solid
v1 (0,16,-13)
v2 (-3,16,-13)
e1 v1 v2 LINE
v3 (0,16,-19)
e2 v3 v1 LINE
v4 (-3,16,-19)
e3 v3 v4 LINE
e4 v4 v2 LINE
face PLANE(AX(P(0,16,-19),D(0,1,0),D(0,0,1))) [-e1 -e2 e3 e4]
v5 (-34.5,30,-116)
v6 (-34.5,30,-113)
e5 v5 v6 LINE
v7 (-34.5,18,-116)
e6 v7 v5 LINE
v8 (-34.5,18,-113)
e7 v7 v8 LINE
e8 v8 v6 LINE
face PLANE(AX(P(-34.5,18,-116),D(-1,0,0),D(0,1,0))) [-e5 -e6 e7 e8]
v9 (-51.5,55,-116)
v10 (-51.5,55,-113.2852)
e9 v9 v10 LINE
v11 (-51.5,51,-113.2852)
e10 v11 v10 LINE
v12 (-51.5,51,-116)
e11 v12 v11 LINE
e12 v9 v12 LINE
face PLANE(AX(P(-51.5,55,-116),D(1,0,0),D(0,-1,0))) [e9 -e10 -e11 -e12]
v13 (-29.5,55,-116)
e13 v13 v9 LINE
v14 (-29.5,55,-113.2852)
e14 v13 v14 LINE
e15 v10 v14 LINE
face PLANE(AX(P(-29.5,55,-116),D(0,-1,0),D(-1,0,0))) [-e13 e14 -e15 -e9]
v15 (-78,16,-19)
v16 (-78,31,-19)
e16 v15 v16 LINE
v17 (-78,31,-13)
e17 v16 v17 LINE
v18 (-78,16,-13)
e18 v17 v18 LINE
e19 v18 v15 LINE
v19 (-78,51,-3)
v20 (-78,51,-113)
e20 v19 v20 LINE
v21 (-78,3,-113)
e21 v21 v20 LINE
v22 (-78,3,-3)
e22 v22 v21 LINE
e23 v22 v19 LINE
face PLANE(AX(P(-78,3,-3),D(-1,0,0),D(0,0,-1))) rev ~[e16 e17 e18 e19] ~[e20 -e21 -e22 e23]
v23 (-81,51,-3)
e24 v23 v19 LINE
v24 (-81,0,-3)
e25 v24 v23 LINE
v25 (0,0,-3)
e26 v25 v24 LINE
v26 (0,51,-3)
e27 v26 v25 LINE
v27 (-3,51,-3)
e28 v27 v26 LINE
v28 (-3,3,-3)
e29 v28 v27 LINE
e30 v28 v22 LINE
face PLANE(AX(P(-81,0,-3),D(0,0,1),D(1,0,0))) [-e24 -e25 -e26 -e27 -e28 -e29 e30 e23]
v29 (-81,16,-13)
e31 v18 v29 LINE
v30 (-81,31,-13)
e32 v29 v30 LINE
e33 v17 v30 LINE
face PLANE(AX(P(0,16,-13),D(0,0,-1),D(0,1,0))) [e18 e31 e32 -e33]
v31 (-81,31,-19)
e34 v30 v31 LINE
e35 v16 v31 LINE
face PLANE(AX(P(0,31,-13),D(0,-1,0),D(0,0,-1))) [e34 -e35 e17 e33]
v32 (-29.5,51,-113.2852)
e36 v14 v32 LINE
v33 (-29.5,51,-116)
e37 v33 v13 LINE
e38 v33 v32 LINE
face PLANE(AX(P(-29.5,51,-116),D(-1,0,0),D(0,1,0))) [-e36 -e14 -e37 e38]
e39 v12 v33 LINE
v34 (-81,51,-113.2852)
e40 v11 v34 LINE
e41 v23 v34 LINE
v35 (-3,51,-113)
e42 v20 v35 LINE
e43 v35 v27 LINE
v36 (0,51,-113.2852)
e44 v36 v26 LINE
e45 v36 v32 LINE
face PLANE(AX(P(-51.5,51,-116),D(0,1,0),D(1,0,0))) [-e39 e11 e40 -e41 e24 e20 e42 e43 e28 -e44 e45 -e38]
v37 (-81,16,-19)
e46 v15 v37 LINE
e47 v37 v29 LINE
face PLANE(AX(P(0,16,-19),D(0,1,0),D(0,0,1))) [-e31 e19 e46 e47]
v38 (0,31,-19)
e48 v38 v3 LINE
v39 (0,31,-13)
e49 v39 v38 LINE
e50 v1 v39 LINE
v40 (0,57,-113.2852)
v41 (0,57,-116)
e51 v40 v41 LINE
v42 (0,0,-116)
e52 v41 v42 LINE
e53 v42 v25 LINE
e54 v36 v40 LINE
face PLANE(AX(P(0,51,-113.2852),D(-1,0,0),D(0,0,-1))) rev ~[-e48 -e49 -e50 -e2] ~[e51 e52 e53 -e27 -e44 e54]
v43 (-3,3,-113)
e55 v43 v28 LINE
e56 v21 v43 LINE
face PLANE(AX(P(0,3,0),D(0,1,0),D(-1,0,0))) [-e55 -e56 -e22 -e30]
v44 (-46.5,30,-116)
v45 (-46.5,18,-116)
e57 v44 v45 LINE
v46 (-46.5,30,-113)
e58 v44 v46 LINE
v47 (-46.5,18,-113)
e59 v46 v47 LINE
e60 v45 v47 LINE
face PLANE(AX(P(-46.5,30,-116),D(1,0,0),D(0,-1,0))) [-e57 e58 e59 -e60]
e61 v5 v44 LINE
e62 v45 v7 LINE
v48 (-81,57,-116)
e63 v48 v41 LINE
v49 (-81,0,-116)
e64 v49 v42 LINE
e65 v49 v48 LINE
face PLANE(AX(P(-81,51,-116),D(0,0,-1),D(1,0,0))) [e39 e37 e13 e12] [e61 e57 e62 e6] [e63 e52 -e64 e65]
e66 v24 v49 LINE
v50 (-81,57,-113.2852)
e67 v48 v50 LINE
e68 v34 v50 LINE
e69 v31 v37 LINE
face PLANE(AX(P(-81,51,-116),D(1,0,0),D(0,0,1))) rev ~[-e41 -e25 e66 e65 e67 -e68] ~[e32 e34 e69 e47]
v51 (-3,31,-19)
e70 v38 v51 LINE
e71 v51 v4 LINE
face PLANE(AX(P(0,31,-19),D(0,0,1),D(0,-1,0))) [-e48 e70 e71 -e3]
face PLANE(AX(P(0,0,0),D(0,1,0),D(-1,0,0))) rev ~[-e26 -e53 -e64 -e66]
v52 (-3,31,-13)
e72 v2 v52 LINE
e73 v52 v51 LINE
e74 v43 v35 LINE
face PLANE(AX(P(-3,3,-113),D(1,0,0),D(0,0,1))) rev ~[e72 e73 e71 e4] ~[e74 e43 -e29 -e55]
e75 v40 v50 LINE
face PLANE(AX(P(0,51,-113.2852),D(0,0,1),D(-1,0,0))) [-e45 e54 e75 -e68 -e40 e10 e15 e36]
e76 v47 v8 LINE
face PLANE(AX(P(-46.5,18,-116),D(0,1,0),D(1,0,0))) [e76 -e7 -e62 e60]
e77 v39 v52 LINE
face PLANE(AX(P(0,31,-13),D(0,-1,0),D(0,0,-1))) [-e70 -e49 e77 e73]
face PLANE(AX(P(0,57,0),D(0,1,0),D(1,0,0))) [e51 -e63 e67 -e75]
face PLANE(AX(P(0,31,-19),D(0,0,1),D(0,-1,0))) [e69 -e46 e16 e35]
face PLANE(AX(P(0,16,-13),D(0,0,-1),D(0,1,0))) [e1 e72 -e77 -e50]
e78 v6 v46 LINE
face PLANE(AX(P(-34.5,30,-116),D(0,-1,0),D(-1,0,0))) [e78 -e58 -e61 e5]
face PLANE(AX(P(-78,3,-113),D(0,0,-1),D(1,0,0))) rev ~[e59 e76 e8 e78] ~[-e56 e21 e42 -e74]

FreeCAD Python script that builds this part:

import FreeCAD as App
import Part
import Sketcher
from FreeCAD import Vector


def add_polygon(sketch, points):
    """Adds a closed chain of lines whose ends are joined by coincident constraints."""
    first, n = sketch.GeometryCount, len(points)
    for a, b in zip(points, points[1:] + points[:1]):
        sketch.addGeometry(Part.LineSegment(App.Vector(*a, 0), App.Vector(*b, 0)), False)
    for i in range(n):
        sketch.addConstraint(Sketcher.Constraint("Coincident", first + i, 2, first + (i + 1) % n, 1))

doc = App.newDocument("Part")
body = doc.addObject("PartDesign::Body", "Body")

# Sketch on XZ plane
sketch1 = body.newObject("Sketcher::SketchObject", "Sketch")
sketch1.AttachmentSupport = (doc.getObject("XZ_Plane"), [""])
sketch1.MapMode = "FlatFace"
add_polygon(sketch1, [(-81, 0), (0, 0), (0, -116), (-81, -116)])  # lines 0-3
sketch1.addConstraint(Sketcher.Constraint("Horizontal", 0))
sketch1.addConstraint(Sketcher.Constraint("Vertical", 1))
sketch1.addConstraint(Sketcher.Constraint("Horizontal", 2))
sketch1.addConstraint(Sketcher.Constraint("Vertical", 3))
sketch1.addConstraint(Sketcher.Constraint("Coincident", 0, 2, -1, 1))
sketch1.addConstraint(Sketcher.Constraint("DistanceX", 0, 1, 0, 2, 81.0))
sketch1.addConstraint(Sketcher.Constraint("DistanceY", 1, 2, 1, 1, 116.0))
pad1 = body.newObject("PartDesign::Pad", "Pad")
pad1.Profile = sketch1
pad1.Length = 3
pad1.Reversed = True

# Sketch on XZ plane
sketch2 = body.newObject("Sketcher::SketchObject", "Sketch001")
sketch2.AttachmentSupport = (doc.getObject("XZ_Plane"), [""])
sketch2.MapMode = "FlatFace"
sketch2.AttachmentOffset = App.Placement(Vector(0, 0, -3), App.Rotation())
add_polygon(sketch2, [(0, 0), (0, -116), (-81, -116), (-81, 0)])  # lines 0-3
add_polygon(sketch2, [(-3, -113), (-3, -3), (-78, -3), (-78, -113)])  # lines 4-7
sketch2.addConstraint(Sketcher.Constraint("Vertical", 0))
sketch2.addConstraint(Sketcher.Constraint("Horizontal", 1))
sketch2.addConstraint(Sketcher.Constraint("Vertical", 2))
sketch2.addConstraint(Sketcher.Constraint("Horizontal", 3))
sketch2.addConstraint(Sketcher.Constraint("Vertical", 4))
sketch2.addConstraint(Sketcher.Constraint("Horizontal", 5))
sketch2.addConstraint(Sketcher.Constraint("Vertical", 6))
sketch2.addConstraint(Sketcher.Constraint("Horizontal", 7))
sketch2.addConstraint(Sketcher.Constraint("Coincident", 3, 2, -1, 1))
sketch2.addConstraint(Sketcher.Constraint("DistanceX", 4, 2, -1, 1, 3.0))
sketch2.addConstraint(Sketcher.Constraint("DistanceY", 4, 2, -1, 1, 3.0))
sketch2.addConstraint(Sketcher.Constraint("DistanceX", 2, 2, 5, 2, 3.0))
sketch2.addConstraint(Sketcher.Constraint("DistanceY", 1, 2, 6, 2, 3.0))
sketch2.addConstraint(Sketcher.Constraint("DistanceX", 1, 2, 1, 1, 81.0))
sketch2.addConstraint(Sketcher.Constraint("DistanceY", 0, 2, 0, 1, 116.0))
pad2 = body.newObject("PartDesign::Pad", "Pad001")
pad2.Profile = sketch2
pad2.Length = 48
pad2.Reversed = True

# Sketch on XY plane
sketch3 = body.newObject("Sketcher::SketchObject", "Sketch002")
sketch3.AttachmentSupport = (doc.getObject("XY_Plane"), [""])
sketch3.MapMode = "FlatFace"
add_polygon(sketch3, [(0, 51), (-81, 51), (-81, 0), (0, 0)])  # lines 0-3
sketch3.addConstraint(Sketcher.Constraint("Horizontal", 0))
sketch3.addConstraint(Sketcher.Constraint("Vertical", 1))
sketch3.addConstraint(Sketcher.Constraint("Horizontal", 2))
sketch3.addConstraint(Sketcher.Constraint("Vertical", 3))
sketch3.addConstraint(Sketcher.Constraint("Coincident", 2, 2, -1, 1))
sketch3.addConstraint(Sketcher.Constraint("DistanceX", 0, 2, 0, 1, 81.0))
sketch3.addConstraint(Sketcher.Constraint("DistanceY", 1, 2, 1, 1, 51.0))
pocket1 = body.newObject("PartDesign::Pocket", "Pocket")
pocket1.Profile = sketch3
pocket1.Length = 3

# Sketch on XZ plane
sketch4 = body.newObject("Sketcher::SketchObject", "Sketch003")
sketch4.AttachmentSupport = (doc.getObject("XZ_Plane"), [""])
sketch4.MapMode = "FlatFace"
sketch4.AttachmentOffset = App.Placement(Vector(0, 0, -51), App.Rotation())
add_polygon(sketch4, [(0, -116), (-81, -116), (-81, -113.2852), (0, -113.2852)])  # lines 0-3
sketch4.addConstraint(Sketcher.Constraint("Horizontal", 0))
sketch4.addConstraint(Sketcher.Constraint("Vertical", 1))
sketch4.addConstraint(Sketcher.Constraint("Horizontal", 2))
sketch4.addConstraint(Sketcher.Constraint("Vertical", 3))
sketch4.addConstraint(Sketcher.Constraint("PointOnObject", 2, 2, -2))
sketch4.addConstraint(Sketcher.Constraint("DistanceX", 0, 2, 0, 1, 81.0))
sketch4.addConstraint(Sketcher.Constraint("DistanceY", 0, 2, -1, 1, 116.0))
sketch4.addConstraint(Sketcher.Constraint("DistanceY", 1, 1, 1, 2, 2.7148))
pad3 = body.newObject("PartDesign::Pad", "Pad002")
pad3.Profile = sketch4
pad3.Length = 6
pad3.Reversed = True

# Sketch on XY plane
sketch5 = body.newObject("Sketcher::SketchObject", "Sketch004")
sketch5.AttachmentSupport = (doc.getObject("XY_Plane"), [""])
sketch5.MapMode = "FlatFace"
sketch5.AttachmentOffset = App.Placement(Vector(0, 0, -116), App.Rotation())
add_polygon(sketch5, [(-51.5, 55), (-29.5, 55), (-29.5, 51), (-51.5, 51)])  # lines 0-3
add_polygon(sketch5, [(-46.5, 30), (-34.5, 30), (-34.5, 18), (-46.5, 18)])  # lines 4-7
sketch5.addConstraint(Sketcher.Constraint("Horizontal", 0))
sketch5.addConstraint(Sketcher.Constraint("Vertical", 1))
sketch5.addConstraint(Sketcher.Constraint("Horizontal", 2))
sketch5.addConstraint(Sketcher.Constraint("Vertical", 3))
sketch5.addConstraint(Sketcher.Constraint("Horizontal", 4))
sketch5.addConstraint(Sketcher.Constraint("Vertical", 5))
sketch5.addConstraint(Sketcher.Constraint("Horizontal", 6))
sketch5.addConstraint(Sketcher.Constraint("Vertical", 7))
sketch5.addConstraint(Sketcher.Constraint("Equal", 6, 5))
sketch5.addConstraint(Sketcher.Constraint("DistanceX", 0, 1, 0, 2, 22.0))
sketch5.addConstraint(Sketcher.Constraint("DistanceX", 4, 1, 4, 2, 12.0))
sketch5.addConstraint(Sketcher.Constraint("DistanceY", 1, 2, 1, 1, 4.0))
sketch5.addConstraint(Sketcher.Constraint("DistanceY", -1, 1, 5, 2, 18.0))
sketch5.addConstraint(Sketcher.Constraint("DistanceX", 0, 2, -1, 1, 29.5))
sketch5.addConstraint(Sketcher.Constraint("DistanceX", 4, 2, -1, 1, 34.5))
sketch5.addConstraint(Sketcher.Constraint("DistanceY", -1, 1, 0, 2, 55.0))
pocket2 = body.newObject("PartDesign::Pocket", "Pocket001")
pocket2.Profile = sketch5
pocket2.Length = 3
pocket2.Reversed = True

# Sketch on YZ plane
sketch6 = body.newObject("Sketcher::SketchObject", "Sketch005")
sketch6.AttachmentSupport = (doc.getObject("YZ_Plane"), [""])
sketch6.MapMode = "FlatFace"
add_polygon(sketch6, [(31, -19), (31, -13), (16, -13), (16, -19)])  # lines 0-3
sketch6.addConstraint(Sketcher.Constraint("Vertical", 0))
sketch6.addConstraint(Sketcher.Constraint("Horizontal", 1))
sketch6.addConstraint(Sketcher.Constraint("Vertical", 2))
sketch6.addConstraint(Sketcher.Constraint("Horizontal", 3))
sketch6.addConstraint(Sketcher.Constraint("DistanceX", 1, 2, 1, 1, 15.0))
sketch6.addConstraint(Sketcher.Constraint("DistanceY", 0, 1, 0, 2, 6.0))
sketch6.addConstraint(Sketcher.Constraint("DistanceX", -1, 1, 1, 2, 16.0))
sketch6.addConstraint(Sketcher.Constraint("DistanceY", 0, 2, -1, 1, 13.0))
pocket3 = body.newObject("PartDesign::Pocket", "Pocket002")
pocket3.Profile = sketch6
pocket3.Length = 81

doc.recompute()
